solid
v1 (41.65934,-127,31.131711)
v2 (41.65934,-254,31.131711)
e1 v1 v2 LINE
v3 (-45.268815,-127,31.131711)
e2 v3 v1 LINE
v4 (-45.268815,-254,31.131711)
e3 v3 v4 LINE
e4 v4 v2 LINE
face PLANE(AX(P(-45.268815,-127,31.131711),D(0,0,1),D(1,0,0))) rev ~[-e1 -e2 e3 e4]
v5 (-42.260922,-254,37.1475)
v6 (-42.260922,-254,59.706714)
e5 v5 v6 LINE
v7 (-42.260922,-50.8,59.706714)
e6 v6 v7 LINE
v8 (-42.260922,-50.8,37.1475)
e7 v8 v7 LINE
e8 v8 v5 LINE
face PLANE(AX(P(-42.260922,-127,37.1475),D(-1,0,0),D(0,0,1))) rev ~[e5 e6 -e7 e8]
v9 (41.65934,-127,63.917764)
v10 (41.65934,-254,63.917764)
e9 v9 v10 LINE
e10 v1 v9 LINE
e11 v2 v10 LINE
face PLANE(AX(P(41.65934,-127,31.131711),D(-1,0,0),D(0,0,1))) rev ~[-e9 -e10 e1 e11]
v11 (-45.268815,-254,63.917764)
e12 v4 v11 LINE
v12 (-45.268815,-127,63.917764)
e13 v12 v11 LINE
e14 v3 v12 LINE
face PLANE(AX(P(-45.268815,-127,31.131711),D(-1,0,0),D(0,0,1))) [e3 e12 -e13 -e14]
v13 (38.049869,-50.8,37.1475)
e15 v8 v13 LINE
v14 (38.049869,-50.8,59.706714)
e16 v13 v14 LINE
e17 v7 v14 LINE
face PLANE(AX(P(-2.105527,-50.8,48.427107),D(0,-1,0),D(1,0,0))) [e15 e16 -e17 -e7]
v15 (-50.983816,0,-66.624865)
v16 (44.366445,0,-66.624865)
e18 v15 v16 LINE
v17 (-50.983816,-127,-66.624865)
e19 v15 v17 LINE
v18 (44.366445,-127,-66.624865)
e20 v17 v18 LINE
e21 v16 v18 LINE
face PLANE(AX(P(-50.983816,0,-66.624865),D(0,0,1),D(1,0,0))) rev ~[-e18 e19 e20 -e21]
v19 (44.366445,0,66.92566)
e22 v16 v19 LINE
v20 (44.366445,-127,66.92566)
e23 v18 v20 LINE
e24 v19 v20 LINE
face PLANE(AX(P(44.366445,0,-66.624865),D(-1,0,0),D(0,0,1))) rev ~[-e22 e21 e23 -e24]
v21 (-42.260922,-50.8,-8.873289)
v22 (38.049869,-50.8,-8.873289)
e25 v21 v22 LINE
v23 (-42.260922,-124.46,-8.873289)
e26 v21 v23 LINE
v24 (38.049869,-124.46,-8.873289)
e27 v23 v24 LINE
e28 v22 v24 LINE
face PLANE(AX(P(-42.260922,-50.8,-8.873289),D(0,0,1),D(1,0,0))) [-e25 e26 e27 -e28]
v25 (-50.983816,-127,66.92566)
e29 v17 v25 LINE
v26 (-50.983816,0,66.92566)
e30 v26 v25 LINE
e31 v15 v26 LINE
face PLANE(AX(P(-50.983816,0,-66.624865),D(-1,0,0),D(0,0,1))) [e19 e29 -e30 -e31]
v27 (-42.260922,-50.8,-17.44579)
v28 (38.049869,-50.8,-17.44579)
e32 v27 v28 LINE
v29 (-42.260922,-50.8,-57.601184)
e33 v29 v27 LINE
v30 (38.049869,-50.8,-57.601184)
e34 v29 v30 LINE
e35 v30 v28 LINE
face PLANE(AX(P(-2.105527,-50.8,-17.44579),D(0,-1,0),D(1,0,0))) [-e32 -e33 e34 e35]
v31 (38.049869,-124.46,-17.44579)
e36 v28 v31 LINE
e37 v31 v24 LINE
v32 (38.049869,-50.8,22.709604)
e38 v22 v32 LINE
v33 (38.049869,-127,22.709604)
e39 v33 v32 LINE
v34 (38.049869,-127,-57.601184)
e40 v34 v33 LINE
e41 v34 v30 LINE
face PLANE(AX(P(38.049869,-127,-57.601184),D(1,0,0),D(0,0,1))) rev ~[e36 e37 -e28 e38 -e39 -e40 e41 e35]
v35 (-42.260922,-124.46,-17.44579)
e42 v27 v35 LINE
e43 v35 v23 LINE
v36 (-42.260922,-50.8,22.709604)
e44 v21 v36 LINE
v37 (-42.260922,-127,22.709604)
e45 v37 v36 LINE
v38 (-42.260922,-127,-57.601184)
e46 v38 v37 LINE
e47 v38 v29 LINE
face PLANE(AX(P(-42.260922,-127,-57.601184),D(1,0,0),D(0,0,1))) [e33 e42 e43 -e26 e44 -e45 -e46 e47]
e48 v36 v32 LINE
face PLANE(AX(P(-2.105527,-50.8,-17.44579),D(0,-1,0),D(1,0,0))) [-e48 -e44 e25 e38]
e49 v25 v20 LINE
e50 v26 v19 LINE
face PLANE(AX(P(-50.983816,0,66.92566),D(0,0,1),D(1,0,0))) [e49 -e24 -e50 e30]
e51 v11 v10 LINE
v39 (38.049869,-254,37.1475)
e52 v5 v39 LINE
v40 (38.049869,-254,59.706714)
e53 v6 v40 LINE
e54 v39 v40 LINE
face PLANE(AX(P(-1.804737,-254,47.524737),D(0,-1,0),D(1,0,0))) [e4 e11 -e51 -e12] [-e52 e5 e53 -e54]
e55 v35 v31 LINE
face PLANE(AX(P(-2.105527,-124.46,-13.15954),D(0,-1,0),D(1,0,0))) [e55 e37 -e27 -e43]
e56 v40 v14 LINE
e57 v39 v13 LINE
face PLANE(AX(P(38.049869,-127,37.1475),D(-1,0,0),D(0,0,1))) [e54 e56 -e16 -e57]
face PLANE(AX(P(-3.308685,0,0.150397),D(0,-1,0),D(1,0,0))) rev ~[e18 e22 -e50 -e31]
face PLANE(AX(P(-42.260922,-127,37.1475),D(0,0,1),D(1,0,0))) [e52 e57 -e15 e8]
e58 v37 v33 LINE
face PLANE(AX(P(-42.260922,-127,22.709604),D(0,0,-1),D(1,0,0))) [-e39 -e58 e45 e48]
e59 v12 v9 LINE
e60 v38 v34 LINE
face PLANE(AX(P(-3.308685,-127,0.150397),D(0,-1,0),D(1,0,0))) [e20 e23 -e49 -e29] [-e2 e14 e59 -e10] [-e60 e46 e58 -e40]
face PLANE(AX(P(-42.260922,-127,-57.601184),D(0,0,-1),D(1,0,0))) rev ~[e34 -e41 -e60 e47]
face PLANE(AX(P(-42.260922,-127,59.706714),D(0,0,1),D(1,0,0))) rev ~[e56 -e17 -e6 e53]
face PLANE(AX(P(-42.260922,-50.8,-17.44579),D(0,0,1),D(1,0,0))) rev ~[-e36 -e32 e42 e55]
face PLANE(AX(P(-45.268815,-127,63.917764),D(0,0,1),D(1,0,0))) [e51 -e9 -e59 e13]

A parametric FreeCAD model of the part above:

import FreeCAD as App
import Part
import Sketcher

V = App.Vector
Q = App.Units.Quantity


def add_polygon(sketch, points):
    """Adds a closed chain of lines whose ends are joined by coincident constraints."""
    first, n = sketch.GeometryCount, len(points)
    for a, b in zip(points, points[1:] + points[:1]):
        sketch.addGeometry(Part.LineSegment(App.Vector(*a, 0), App.Vector(*b, 0)), False)
    for i in range(n):
        sketch.addConstraint(Sketcher.Constraint("Coincident", first + i, 2, first + (i + 1) % n, 1))

doc = App.newDocument("Part")
body = doc.addObject("PartDesign::Body", "Body")

# Sketch on XZ plane
sketch1 = doc.addObject("Sketcher::SketchObject", "Sketch")
body.addObject(sketch1)
sketch1.AttachmentSupport = (doc.XZ_Plane, [""])
sketch1.MapMode = "FlatFace"
add_polygon(sketch1, [(-51, 67), (-51, -67), (44, -67), (44, 67)])  # lines 0-3
sketch1.addConstraint(Sketcher.Constraint("Vertical", 0))
sketch1.addConstraint(Sketcher.Constraint("Horizontal", 1))
sketch1.addConstraint(Sketcher.Constraint("Vertical", 2))
sketch1.addConstraint(Sketcher.Constraint("Horizontal", 3))
sketch1.addConstraint(Sketcher.Constraint("DistanceX", 1, 1, 1, 2, 95.350262))
sketch1.addConstraint(Sketcher.Constraint("DistanceY", 0, 2, 0, 1, 133.550525))
sketch1.addConstraint(Sketcher.Constraint("DistanceY", -1, 1, 2, 2, 66.92566))
sketch1.addConstraint(Sketcher.Constraint("DistanceX", 0, 2, -1, 1, 50.983816))
pad1 = doc.addObject("PartDesign::Pad", "Pad")
body.addObject(pad1)
pad1.Profile = sketch1
pad1.Length = Q("5 in")

# Sketch on XZ plane
sketch2 = doc.addObject("Sketcher::SketchObject", "Sketch001")
body.addObject(sketch2)
sketch2.AttachmentSupport = (doc.XZ_Plane, [""])
sketch2.MapMode = "FlatFace"
sketch2.AttachmentOffset = App.Placement(V(0, 0, 5 * 25.4), App.Rotation())
add_polygon(sketch2, [(-42, 60), (-42, 37), (38, 37), (38, 60)])  # lines 0-3
add_polygon(sketch2, [(-42, 23), (-42, -58), (38, -58), (38, 23)])  # lines 4-7
sketch2.addConstraint(Sketcher.Constraint("Vertical", 0))
sketch2.addConstraint(Sketcher.Constraint("Horizontal", 1))
sketch2.addConstraint(Sketcher.Constraint("Vertical", 2))
sketch2.addConstraint(Sketcher.Constraint("Horizontal", 3))
sketch2.addConstraint(Sketcher.Constraint("Vertical", 4))
sketch2.addConstraint(Sketcher.Constraint("Horizontal", 5))
sketch2.addConstraint(Sketcher.Constraint("Vertical", 6))
sketch2.addConstraint(Sketcher.Constraint("Horizontal", 7))
sketch2.addConstraint(Sketcher.Constraint("Vertical", 3, 2, 4, 2))
sketch2.addConstraint(Sketcher.Constraint("Vertical", 2, 2, 5, 2))
sketch2.addConstraint(Sketcher.Constraint("DistanceY", -1, 1, 0, 2, Q("1.4625 in")))
sketch2.addConstraint(Sketcher.Constraint("DistanceX", 1, 1, 1, 2, 80.310792))
sketch2.addConstraint(Sketcher.Constraint("DistanceY", 4, 2, 4, 1, 80.310788))
sketch2.addConstraint(Sketcher.Constraint("DistanceY", 0, 2, 0, 1, 22.559214))
sketch2.addConstraint(Sketcher.Constraint("DistanceX", -1, 1, 1, 2, 38.049869))
sketch2.addConstraint(Sketcher.Constraint("DistanceY", 6, 2, 2, 2, 36.99711))
pocket1 = doc.addObject("PartDesign::Pocket", "Pocket")
body.addObject(pocket1)
pocket1.Profile = sketch2
pocket1.Length = Q("3 in")

# Sketch on XZ plane
sketch3 = doc.addObject("Sketcher::SketchObject", "Sketch002")
body.addObject(sketch3)
sketch3.AttachmentSupport = (doc.XZ_Plane, [""])
sketch3.MapMode = "FlatFace"
sketch3.AttachmentOffset = App.Placement(V(0, 0, 2 * 25.4), App.Rotation())
add_polygon(sketch3, [(-42, -9), (-42, -17), (38, -17), (38, -9)])  # lines 0-3
sketch3.addConstraint(Sketcher.Constraint("Vertical", 0))
sketch3.addConstraint(Sketcher.Constraint("Horizontal", 1))
sketch3.addConstraint(Sketcher.Constraint("Vertical", 2))
sketch3.addConstraint(Sketcher.Constraint("Horizontal", 3))
sketch3.addConstraint(Sketcher.Constraint("DistanceY", 0, 2, 0, 1, Q("0.3375 in")))
sketch3.addConstraint(Sketcher.Constraint("DistanceX", 1, 1, 1, 2, 80.310792))
sketch3.addConstraint(Sketcher.Constraint("DistanceY", 0, 2, -1, 1, 17.44579))
sketch3.addConstraint(Sketcher.Constraint("DistanceX", -1, 1, 1, 2, 38.049869))
pad2 = doc.addObject("PartDesign::Pad", "Pad001")
body.addObject(pad2)
pad2.Profile = sketch3
pad2.Length = Q("2.9 in")

# Sketch on XZ plane
sketch4 = doc.addObject("Sketcher::SketchObject", "Sketch003")
body.addObject(sketch4)
sketch4.AttachmentSupport = (doc.XZ_Plane, [""])
sketch4.MapMode = "FlatFace"
sketch4.AttachmentOffset = App.Placement(V(0, 0, 5 * 25.4), App.Rotation())
add_polygon(sketch4, [(-45, 64), (-45, 31), (42, 31), (42, 64)])  # lines 0-3
add_polygon(sketch4, [(38, 37), (-42, 37), (-42, 60), (38, 60)])  # lines 4-7
sketch4.addConstraint(Sketcher.Constraint("Vertical", 0))
sketch4.addConstraint(Sketcher.Constraint("Horizontal", 1))
sketch4.addConstraint(Sketcher.Constraint("Vertical", 2))
sketch4.addConstraint(Sketcher.Constraint("Horizontal", 3))
sketch4.addConstraint(Sketcher.Constraint("Horizontal", 4))
sketch4.addConstraint(Sketcher.Constraint("Vertical", 5))
sketch4.addConstraint(Sketcher.Constraint("Horizontal", 6))
sketch4.addConstraint(Sketcher.Constraint("Vertical", 7))
sketch4.addConstraint(Sketcher.Constraint("DistanceY", 0, 2, 5, 2, Q("1.1250001 in")))
sketch4.addConstraint(Sketcher.Constraint("DistanceY", -1, 1, 4, 2, Q("1.4625 in")))
sketch4.addConstraint(Sketcher.Constraint("DistanceX", 4, 2, 4, 1, 80.310792))
sketch4.addConstraint(Sketcher.Constraint("DistanceX", 1, 1, 1, 2, 86.928155))
sketch4.addConstraint(Sketcher.Constraint("DistanceY", 0, 2, 0, 1, 32.786053))
sketch4.addConstraint(Sketcher.Constraint("DistanceY", 5, 1, 5, 2, 22.559214))
sketch4.addConstraint(Sketcher.Constraint("DistanceX", -1, 1, 1, 2, 41.65934))
sketch4.addConstraint(Sketcher.Constraint("DistanceX", -1, 1, 6, 2, 38.049869))
pad3 = doc.addObject("PartDesign::Pad", "Pad002")
body.addObject(pad3)
pad3.Profile = sketch4
pad3.Length = Q("5 in")

doc.recompute()
